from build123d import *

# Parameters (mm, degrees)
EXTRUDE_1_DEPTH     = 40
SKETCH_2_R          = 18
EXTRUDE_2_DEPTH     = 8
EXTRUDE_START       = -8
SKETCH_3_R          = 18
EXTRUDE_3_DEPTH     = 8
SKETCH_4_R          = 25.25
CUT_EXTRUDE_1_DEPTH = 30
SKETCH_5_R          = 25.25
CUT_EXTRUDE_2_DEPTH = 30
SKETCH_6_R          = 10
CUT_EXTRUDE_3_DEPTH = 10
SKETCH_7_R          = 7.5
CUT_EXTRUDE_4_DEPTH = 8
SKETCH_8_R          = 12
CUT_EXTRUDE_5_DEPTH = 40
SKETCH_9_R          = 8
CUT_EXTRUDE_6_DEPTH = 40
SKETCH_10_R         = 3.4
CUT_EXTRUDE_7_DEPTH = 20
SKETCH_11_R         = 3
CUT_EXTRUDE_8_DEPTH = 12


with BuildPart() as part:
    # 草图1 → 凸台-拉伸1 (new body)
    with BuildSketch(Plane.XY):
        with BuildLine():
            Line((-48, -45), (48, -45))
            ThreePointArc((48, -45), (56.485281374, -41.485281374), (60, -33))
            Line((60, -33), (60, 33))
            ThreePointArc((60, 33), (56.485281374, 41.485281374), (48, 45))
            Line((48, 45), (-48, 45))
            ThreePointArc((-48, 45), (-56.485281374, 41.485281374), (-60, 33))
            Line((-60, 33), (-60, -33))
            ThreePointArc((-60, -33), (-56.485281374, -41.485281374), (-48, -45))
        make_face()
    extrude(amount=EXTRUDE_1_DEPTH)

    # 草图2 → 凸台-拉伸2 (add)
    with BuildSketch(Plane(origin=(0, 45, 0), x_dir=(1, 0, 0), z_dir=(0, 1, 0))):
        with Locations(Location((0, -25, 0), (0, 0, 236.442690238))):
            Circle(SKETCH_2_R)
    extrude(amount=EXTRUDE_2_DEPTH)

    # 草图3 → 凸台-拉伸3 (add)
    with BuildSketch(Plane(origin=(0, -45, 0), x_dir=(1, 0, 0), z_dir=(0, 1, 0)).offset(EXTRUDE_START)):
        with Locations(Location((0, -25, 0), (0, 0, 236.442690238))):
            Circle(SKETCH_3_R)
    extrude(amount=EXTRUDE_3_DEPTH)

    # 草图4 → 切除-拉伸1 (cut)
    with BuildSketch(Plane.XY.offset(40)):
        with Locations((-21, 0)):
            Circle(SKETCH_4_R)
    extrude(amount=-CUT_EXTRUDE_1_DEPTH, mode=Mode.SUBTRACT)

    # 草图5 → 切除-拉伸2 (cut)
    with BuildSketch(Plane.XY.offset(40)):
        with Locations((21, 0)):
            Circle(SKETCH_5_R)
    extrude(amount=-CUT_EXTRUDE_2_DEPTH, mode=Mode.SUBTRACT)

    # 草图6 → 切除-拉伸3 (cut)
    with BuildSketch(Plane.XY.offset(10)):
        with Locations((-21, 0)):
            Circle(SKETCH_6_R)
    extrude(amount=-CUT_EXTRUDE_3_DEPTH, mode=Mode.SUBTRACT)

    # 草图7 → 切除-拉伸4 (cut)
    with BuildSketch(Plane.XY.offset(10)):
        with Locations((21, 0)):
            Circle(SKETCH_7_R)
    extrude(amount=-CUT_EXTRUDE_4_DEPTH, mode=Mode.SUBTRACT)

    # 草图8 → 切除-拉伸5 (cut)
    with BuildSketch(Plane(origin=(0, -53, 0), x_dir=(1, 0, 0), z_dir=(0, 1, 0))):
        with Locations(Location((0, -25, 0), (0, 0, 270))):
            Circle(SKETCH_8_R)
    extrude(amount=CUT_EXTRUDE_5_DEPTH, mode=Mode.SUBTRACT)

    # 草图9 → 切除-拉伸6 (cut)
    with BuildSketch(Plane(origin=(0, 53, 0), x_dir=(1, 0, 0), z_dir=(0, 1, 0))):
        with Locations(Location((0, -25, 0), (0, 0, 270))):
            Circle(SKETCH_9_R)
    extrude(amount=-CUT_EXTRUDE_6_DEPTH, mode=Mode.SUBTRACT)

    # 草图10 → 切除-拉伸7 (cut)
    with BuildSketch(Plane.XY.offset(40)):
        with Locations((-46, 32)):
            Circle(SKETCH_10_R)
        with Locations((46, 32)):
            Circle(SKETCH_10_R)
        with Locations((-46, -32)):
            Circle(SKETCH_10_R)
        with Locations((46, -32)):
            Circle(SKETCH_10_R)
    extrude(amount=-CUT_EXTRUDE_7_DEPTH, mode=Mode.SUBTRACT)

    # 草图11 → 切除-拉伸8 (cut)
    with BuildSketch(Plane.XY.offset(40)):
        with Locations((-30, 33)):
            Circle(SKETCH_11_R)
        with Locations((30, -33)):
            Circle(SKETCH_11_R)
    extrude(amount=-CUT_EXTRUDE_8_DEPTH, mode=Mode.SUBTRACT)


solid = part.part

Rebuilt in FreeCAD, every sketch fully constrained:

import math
import FreeCAD as App
import Part
import Sketcher

V = App.Vector
Q = App.Units.Quantity

doc = App.newDocument("Part")
body = doc.addObject("PartDesign::Body", "Body")

# Sketch on XY plane
sketch1 = body.newObject("Sketcher::SketchObject", "Sketch")
sketch1.AttachmentSupport = (doc.getObject("XY_Plane"), [""])
sketch1.MapMode = "FlatFace"
sketch1.addGeometry([
    Part.LineSegment(V(-48, -45, 0), V(48, -45, 0)),  # 0
    Part.ArcOfCircle(Part.Circle(V(48, -33, 0), V(0, 0, 1), 12), math.radians(-90), math.radians(0)),  # 1
    Part.LineSegment(V(60, -33, 0), V(60, 33, 0)),  # 2
    Part.ArcOfCircle(Part.Circle(V(48, 33, 0), V(0, 0, 1), 12), math.radians(0), math.radians(90)),  # 3
    Part.LineSegment(V(48, 45, 0), V(-48, 45, 0)),  # 4
    Part.ArcOfCircle(Part.Circle(V(-48, 33, 0), V(0, 0, 1), 12), math.radians(90), math.radians(180)),  # 5
    Part.LineSegment(V(-60, 33, 0), V(-60, -33, 0)),  # 6
    Part.ArcOfCircle(Part.Circle(V(-48, -33, 0), V(0, 0, 1), 12), math.radians(-180), math.radians(-90)),  # 7
], False)
sketch1.addConstraint([
    Sketcher.Constraint("Tangent", 0, 2, 1, 1),
    Sketcher.Constraint("Tangent", 1, 2, 2, 1),
    Sketcher.Constraint("Tangent", 2, 2, 3, 1),
    Sketcher.Constraint("Tangent", 3, 2, 4, 1),
    Sketcher.Constraint("Tangent", 4, 2, 5, 1),
    Sketcher.Constraint("Tangent", 5, 2, 6, 1),
    Sketcher.Constraint("Tangent", 6, 2, 7, 1),
    Sketcher.Constraint("Tangent", 7, 2, 0, 1),
    Sketcher.Constraint("Horizontal", 0),
    Sketcher.Constraint("Vertical", 2),
    Sketcher.Constraint("Horizontal", 4),
    Sketcher.Constraint("Vertical", 6),
    Sketcher.Constraint("Equal", 1, 3),
    Sketcher.Constraint("Equal", 3, 5),
    Sketcher.Constraint("Equal", 5, 7),
    Sketcher.Constraint("Symmetric", 1, 3, 5, 3, -1, 1),
    Sketcher.Constraint("Radius", 1, Q("12 mm")),
    Sketcher.Constraint("DistanceX", 0, 1, 0, 2, Q("96 mm")),
    Sketcher.Constraint("DistanceY", 2, 1, 2, 2, Q("66 mm")),
])
pad1 = body.newObject("PartDesign::Pad", "Pad")
pad1.Profile = sketch1
pad1.Length = 40

# Sketch on XZ plane
sketch2 = body.newObject("Sketcher::SketchObject", "Sketch001")
sketch2.AttachmentSupport = (doc.getObject("XZ_Plane"), [""])
sketch2.MapMode = "FlatFace"
sketch2.AttachmentOffset = App.Placement(V(0, 0, -45), App.Rotation())
sketch2.addGeometry(Part.Circle(V(0, 25, 0), V(0, 0, 1), 18), False)
sketch2.addConstraint([
    Sketcher.Constraint("PointOnObject", 0, 3, -2),
    Sketcher.Constraint("Diameter", 0, Q("36 mm")),
    Sketcher.Constraint("DistanceY", -1, 1, 0, 3, Q("25 mm")),
])
pad2 = body.newObject("PartDesign::Pad", "Pad001")
pad2.Profile = sketch2
pad2.Length = 8
pad2.Reversed = True

# Sketch on XZ plane
sketch3 = body.newObject("Sketcher::SketchObject", "Sketch002")
sketch3.AttachmentSupport = (doc.getObject("XZ_Plane"), [""])
sketch3.MapMode = "FlatFace"
sketch3.AttachmentOffset = App.Placement(V(0, 0, 53), App.Rotation())
sketch3.addGeometry(Part.Circle(V(0, 25, 0), V(0, 0, 1), 18), False)
sketch3.addConstraint([
    Sketcher.Constraint("PointOnObject", 0, 3, -2),
    Sketcher.Constraint("Diameter", 0, Q("36 mm")),
    Sketcher.Constraint("DistanceY", -1, 1, 0, 3, Q("25 mm")),
])
pad3 = body.newObject("PartDesign::Pad", "Pad002")
pad3.Profile = sketch3
pad3.Length = 8
pad3.Reversed = True

# Sketch on XY plane
sketch4 = body.newObject("Sketcher::SketchObject", "Sketch003")
sketch4.AttachmentSupport = (doc.getObject("XY_Plane"), [""])
sketch4.MapMode = "FlatFace"
sketch4.AttachmentOffset = App.Placement(V(0, 0, 40), App.Rotation())
sketch4.addGeometry(Part.Circle(V(-21, 0, 0), V(0, 0, 1), 25), False)
sketch4.addConstraint([
    Sketcher.Constraint("PointOnObject", 0, 3, -1),
    Sketcher.Constraint("Diameter", 0, Q("50.5 mm")),
    Sketcher.Constraint("DistanceX", 0, 3, -1, 1, Q("21 mm")),
])
pocket1 = body.newObject("PartDesign::Pocket", "Pocket")
pocket1.Profile = sketch4
pocket1.Length = 30

# Sketch on XY plane
sketch5 = body.newObject("Sketcher::SketchObject", "Sketch004")
sketch5.AttachmentSupport = (doc.getObject("XY_Plane"), [""])
sketch5.MapMode = "FlatFace"
sketch5.AttachmentOffset = App.Placement(V(0, 0, 40), App.Rotation())
sketch5.addGeometry(Part.Circle(V(21, 0, 0), V(0, 0, 1), 25), False)
sketch5.addConstraint([
    Sketcher.Constraint("PointOnObject", 0, 3, -1),
    Sketcher.Constraint("Diameter", 0, Q("50.5 mm")),
    Sketcher.Constraint("DistanceX", -1, 1, 0, 3, Q("21 mm")),
])
pocket2 = body.newObject("PartDesign::Pocket", "Pocket001")
pocket2.Profile = sketch5
pocket2.Length = 30

# Sketch on XY plane
sketch6 = body.newObject("Sketcher::SketchObject", "Sketch005")
sketch6.AttachmentSupport = (doc.getObject("XY_Plane"), [""])
sketch6.MapMode = "FlatFace"
sketch6.AttachmentOffset = App.Placement(V(0, 0, 10), App.Rotation())
sketch6.addGeometry(Part.Circle(V(-21, 0, 0), V(0, 0, 1), 10), False)
sketch6.addConstraint([
    Sketcher.Constraint("PointOnObject", 0, 3, -1),
    Sketcher.Constraint("Diameter", 0, Q("20 mm")),
    Sketcher.Constraint("DistanceX", 0, 3, -1, 1, Q("21 mm")),
])
pocket3 = body.newObject("PartDesign::Pocket", "Pocket002")
pocket3.Profile = sketch6
pocket3.Length = 10

# Sketch on XY plane
sketch7 = body.newObject("Sketcher::SketchObject", "Sketch006")
sketch7.AttachmentSupport = (doc.getObject("XY_Plane"), [""])
sketch7.MapMode = "FlatFace"
sketch7.AttachmentOffset = App.Placement(V(0, 0, 10), App.Rotation())
sketch7.addGeometry(Part.Circle(V(21, 0, 0), V(0, 0, 1), 8), False)
sketch7.addConstraint([
    Sketcher.Constraint("PointOnObject", 0, 3, -1),
    Sketcher.Constraint("Diameter", 0, Q("15 mm")),
    Sketcher.Constraint("DistanceX", -1, 1, 0, 3, Q("21 mm")),
])
pocket4 = body.newObject("PartDesign::Pocket", "Pocket003")
pocket4.Profile = sketch7
pocket4.Length = 8

# Sketch on XZ plane
sketch8 = body.newObject("Sketcher::SketchObject", "Sketch007")
sketch8.AttachmentSupport = (doc.getObject("XZ_Plane"), [""])
sketch8.MapMode = "FlatFace"
sketch8.AttachmentOffset = App.Placement(V(0, 0, 53), App.Rotation())
sketch8.addGeometry(Part.Circle(V(0, 25, 0), V(0, 0, 1), 12), False)
sketch8.addConstraint([
    Sketcher.Constraint("PointOnObject", 0, 3, -2),
    Sketcher.Constraint("Diameter", 0, Q("24 mm")),
    Sketcher.Constraint("DistanceY", -1, 1, 0, 3, Q("25 mm")),
])
pocket5 = body.newObject("PartDesign::Pocket", "Pocket004")
pocket5.Profile = sketch8
pocket5.Length = 40

# Sketch on XZ plane
sketch9 = body.newObject("Sketcher::SketchObject", "Sketch008")
sketch9.AttachmentSupport = (doc.getObject("XZ_Plane"), [""])
sketch9.MapMode = "FlatFace"
sketch9.AttachmentOffset = App.Placement(V(0, 0, -53), App.Rotation())
sketch9.addGeometry(Part.Circle(V(0, 25, 0), V(0, 0, 1), 8), False)
sketch9.addConstraint([
    Sketcher.Constraint("PointOnObject", 0, 3, -2),
    Sketcher.Constraint("Diameter", 0, Q("16 mm")),
    Sketcher.Constraint("DistanceY", -1, 1, 0, 3, Q("25 mm")),
])
pocket6 = body.newObject("PartDesign::Pocket", "Pocket005")
pocket6.Profile = sketch9
pocket6.Length = 40
pocket6.Reversed = True

# Sketch on XY plane
sketch10 = body.newObject("Sketcher::SketchObject", "Sketch009")
sketch10.AttachmentSupport = (doc.getObject("XY_Plane"), [""])
sketch10.MapMode = "FlatFace"
sketch10.AttachmentOffset = App.Placement(V(0, 0, 40), App.Rotation())
sketch10.addGeometry([
    Part.Circle(V(-46, 32, 0), V(0, 0, 1), 3.4),
    Part.Circle(V(46, 32, 0), V(0, 0, 1), 3.4),
    Part.Circle(V(-46, -32, 0), V(0, 0, 1), 3.4),
    Part.Circle(V(46, -32, 0), V(0, 0, 1), 3.4),
], False)
sketch10.addConstraint([
    Sketcher.Constraint("Equal", 0, 1),
    Sketcher.Constraint("Equal", 1, 2),
    Sketcher.Constraint("Equal", 2, 3),
    Sketcher.Constraint("Symmetric", 1, 3, 2, 3, -1, 1),
    Sketcher.Constraint("Symmetric", 0, 3, 3, 3, -1, 1),
    Sketcher.Constraint("Symmetric", 0, 3, 1, 3, -2),
    Sketcher.Constraint("Diameter", 0, Q("6.8 mm")),
    Sketcher.Constraint("DistanceX", 0, 3, -1, 1, Q("46 mm")),
    Sketcher.Constraint("DistanceY", -1, 1, 0, 3, Q("32 mm")),
])
pocket7 = body.newObject("PartDesign::Pocket", "Pocket006")
pocket7.Profile = sketch10
pocket7.Length = 20

# Sketch on XY plane
sketch11 = body.newObject("Sketcher::SketchObject", "Sketch010")
sketch11.AttachmentSupport = (doc.getObject("XY_Plane"), [""])
sketch11.MapMode = "FlatFace"
sketch11.AttachmentOffset = App.Placement(V(0, 0, 40), App.Rotation())
sketch11.addGeometry([
    Part.Circle(V(-30, 33, 0), V(0, 0, 1), 3),
    Part.Circle(V(30, -33, 0), V(0, 0, 1), 3),
], False)
sketch11.addConstraint([
    Sketcher.Constraint("Equal", 0, 1),
    Sketcher.Constraint("Symmetric", 0, 3, 1, 3, -1, 1),
    Sketcher.Constraint("Diameter", 0, Q("6 mm")),
    Sketcher.Constraint("DistanceX", 0, 3, -1, 1, Q("30 mm")),
    Sketcher.Constraint("DistanceY", -1, 1, 0, 3, Q("33 mm")),
])
pocket8 = body.newObject("PartDesign::Pocket", "Pocket007")
pocket8.Profile = sketch11
pocket8.Length = 12

doc.recompute()
